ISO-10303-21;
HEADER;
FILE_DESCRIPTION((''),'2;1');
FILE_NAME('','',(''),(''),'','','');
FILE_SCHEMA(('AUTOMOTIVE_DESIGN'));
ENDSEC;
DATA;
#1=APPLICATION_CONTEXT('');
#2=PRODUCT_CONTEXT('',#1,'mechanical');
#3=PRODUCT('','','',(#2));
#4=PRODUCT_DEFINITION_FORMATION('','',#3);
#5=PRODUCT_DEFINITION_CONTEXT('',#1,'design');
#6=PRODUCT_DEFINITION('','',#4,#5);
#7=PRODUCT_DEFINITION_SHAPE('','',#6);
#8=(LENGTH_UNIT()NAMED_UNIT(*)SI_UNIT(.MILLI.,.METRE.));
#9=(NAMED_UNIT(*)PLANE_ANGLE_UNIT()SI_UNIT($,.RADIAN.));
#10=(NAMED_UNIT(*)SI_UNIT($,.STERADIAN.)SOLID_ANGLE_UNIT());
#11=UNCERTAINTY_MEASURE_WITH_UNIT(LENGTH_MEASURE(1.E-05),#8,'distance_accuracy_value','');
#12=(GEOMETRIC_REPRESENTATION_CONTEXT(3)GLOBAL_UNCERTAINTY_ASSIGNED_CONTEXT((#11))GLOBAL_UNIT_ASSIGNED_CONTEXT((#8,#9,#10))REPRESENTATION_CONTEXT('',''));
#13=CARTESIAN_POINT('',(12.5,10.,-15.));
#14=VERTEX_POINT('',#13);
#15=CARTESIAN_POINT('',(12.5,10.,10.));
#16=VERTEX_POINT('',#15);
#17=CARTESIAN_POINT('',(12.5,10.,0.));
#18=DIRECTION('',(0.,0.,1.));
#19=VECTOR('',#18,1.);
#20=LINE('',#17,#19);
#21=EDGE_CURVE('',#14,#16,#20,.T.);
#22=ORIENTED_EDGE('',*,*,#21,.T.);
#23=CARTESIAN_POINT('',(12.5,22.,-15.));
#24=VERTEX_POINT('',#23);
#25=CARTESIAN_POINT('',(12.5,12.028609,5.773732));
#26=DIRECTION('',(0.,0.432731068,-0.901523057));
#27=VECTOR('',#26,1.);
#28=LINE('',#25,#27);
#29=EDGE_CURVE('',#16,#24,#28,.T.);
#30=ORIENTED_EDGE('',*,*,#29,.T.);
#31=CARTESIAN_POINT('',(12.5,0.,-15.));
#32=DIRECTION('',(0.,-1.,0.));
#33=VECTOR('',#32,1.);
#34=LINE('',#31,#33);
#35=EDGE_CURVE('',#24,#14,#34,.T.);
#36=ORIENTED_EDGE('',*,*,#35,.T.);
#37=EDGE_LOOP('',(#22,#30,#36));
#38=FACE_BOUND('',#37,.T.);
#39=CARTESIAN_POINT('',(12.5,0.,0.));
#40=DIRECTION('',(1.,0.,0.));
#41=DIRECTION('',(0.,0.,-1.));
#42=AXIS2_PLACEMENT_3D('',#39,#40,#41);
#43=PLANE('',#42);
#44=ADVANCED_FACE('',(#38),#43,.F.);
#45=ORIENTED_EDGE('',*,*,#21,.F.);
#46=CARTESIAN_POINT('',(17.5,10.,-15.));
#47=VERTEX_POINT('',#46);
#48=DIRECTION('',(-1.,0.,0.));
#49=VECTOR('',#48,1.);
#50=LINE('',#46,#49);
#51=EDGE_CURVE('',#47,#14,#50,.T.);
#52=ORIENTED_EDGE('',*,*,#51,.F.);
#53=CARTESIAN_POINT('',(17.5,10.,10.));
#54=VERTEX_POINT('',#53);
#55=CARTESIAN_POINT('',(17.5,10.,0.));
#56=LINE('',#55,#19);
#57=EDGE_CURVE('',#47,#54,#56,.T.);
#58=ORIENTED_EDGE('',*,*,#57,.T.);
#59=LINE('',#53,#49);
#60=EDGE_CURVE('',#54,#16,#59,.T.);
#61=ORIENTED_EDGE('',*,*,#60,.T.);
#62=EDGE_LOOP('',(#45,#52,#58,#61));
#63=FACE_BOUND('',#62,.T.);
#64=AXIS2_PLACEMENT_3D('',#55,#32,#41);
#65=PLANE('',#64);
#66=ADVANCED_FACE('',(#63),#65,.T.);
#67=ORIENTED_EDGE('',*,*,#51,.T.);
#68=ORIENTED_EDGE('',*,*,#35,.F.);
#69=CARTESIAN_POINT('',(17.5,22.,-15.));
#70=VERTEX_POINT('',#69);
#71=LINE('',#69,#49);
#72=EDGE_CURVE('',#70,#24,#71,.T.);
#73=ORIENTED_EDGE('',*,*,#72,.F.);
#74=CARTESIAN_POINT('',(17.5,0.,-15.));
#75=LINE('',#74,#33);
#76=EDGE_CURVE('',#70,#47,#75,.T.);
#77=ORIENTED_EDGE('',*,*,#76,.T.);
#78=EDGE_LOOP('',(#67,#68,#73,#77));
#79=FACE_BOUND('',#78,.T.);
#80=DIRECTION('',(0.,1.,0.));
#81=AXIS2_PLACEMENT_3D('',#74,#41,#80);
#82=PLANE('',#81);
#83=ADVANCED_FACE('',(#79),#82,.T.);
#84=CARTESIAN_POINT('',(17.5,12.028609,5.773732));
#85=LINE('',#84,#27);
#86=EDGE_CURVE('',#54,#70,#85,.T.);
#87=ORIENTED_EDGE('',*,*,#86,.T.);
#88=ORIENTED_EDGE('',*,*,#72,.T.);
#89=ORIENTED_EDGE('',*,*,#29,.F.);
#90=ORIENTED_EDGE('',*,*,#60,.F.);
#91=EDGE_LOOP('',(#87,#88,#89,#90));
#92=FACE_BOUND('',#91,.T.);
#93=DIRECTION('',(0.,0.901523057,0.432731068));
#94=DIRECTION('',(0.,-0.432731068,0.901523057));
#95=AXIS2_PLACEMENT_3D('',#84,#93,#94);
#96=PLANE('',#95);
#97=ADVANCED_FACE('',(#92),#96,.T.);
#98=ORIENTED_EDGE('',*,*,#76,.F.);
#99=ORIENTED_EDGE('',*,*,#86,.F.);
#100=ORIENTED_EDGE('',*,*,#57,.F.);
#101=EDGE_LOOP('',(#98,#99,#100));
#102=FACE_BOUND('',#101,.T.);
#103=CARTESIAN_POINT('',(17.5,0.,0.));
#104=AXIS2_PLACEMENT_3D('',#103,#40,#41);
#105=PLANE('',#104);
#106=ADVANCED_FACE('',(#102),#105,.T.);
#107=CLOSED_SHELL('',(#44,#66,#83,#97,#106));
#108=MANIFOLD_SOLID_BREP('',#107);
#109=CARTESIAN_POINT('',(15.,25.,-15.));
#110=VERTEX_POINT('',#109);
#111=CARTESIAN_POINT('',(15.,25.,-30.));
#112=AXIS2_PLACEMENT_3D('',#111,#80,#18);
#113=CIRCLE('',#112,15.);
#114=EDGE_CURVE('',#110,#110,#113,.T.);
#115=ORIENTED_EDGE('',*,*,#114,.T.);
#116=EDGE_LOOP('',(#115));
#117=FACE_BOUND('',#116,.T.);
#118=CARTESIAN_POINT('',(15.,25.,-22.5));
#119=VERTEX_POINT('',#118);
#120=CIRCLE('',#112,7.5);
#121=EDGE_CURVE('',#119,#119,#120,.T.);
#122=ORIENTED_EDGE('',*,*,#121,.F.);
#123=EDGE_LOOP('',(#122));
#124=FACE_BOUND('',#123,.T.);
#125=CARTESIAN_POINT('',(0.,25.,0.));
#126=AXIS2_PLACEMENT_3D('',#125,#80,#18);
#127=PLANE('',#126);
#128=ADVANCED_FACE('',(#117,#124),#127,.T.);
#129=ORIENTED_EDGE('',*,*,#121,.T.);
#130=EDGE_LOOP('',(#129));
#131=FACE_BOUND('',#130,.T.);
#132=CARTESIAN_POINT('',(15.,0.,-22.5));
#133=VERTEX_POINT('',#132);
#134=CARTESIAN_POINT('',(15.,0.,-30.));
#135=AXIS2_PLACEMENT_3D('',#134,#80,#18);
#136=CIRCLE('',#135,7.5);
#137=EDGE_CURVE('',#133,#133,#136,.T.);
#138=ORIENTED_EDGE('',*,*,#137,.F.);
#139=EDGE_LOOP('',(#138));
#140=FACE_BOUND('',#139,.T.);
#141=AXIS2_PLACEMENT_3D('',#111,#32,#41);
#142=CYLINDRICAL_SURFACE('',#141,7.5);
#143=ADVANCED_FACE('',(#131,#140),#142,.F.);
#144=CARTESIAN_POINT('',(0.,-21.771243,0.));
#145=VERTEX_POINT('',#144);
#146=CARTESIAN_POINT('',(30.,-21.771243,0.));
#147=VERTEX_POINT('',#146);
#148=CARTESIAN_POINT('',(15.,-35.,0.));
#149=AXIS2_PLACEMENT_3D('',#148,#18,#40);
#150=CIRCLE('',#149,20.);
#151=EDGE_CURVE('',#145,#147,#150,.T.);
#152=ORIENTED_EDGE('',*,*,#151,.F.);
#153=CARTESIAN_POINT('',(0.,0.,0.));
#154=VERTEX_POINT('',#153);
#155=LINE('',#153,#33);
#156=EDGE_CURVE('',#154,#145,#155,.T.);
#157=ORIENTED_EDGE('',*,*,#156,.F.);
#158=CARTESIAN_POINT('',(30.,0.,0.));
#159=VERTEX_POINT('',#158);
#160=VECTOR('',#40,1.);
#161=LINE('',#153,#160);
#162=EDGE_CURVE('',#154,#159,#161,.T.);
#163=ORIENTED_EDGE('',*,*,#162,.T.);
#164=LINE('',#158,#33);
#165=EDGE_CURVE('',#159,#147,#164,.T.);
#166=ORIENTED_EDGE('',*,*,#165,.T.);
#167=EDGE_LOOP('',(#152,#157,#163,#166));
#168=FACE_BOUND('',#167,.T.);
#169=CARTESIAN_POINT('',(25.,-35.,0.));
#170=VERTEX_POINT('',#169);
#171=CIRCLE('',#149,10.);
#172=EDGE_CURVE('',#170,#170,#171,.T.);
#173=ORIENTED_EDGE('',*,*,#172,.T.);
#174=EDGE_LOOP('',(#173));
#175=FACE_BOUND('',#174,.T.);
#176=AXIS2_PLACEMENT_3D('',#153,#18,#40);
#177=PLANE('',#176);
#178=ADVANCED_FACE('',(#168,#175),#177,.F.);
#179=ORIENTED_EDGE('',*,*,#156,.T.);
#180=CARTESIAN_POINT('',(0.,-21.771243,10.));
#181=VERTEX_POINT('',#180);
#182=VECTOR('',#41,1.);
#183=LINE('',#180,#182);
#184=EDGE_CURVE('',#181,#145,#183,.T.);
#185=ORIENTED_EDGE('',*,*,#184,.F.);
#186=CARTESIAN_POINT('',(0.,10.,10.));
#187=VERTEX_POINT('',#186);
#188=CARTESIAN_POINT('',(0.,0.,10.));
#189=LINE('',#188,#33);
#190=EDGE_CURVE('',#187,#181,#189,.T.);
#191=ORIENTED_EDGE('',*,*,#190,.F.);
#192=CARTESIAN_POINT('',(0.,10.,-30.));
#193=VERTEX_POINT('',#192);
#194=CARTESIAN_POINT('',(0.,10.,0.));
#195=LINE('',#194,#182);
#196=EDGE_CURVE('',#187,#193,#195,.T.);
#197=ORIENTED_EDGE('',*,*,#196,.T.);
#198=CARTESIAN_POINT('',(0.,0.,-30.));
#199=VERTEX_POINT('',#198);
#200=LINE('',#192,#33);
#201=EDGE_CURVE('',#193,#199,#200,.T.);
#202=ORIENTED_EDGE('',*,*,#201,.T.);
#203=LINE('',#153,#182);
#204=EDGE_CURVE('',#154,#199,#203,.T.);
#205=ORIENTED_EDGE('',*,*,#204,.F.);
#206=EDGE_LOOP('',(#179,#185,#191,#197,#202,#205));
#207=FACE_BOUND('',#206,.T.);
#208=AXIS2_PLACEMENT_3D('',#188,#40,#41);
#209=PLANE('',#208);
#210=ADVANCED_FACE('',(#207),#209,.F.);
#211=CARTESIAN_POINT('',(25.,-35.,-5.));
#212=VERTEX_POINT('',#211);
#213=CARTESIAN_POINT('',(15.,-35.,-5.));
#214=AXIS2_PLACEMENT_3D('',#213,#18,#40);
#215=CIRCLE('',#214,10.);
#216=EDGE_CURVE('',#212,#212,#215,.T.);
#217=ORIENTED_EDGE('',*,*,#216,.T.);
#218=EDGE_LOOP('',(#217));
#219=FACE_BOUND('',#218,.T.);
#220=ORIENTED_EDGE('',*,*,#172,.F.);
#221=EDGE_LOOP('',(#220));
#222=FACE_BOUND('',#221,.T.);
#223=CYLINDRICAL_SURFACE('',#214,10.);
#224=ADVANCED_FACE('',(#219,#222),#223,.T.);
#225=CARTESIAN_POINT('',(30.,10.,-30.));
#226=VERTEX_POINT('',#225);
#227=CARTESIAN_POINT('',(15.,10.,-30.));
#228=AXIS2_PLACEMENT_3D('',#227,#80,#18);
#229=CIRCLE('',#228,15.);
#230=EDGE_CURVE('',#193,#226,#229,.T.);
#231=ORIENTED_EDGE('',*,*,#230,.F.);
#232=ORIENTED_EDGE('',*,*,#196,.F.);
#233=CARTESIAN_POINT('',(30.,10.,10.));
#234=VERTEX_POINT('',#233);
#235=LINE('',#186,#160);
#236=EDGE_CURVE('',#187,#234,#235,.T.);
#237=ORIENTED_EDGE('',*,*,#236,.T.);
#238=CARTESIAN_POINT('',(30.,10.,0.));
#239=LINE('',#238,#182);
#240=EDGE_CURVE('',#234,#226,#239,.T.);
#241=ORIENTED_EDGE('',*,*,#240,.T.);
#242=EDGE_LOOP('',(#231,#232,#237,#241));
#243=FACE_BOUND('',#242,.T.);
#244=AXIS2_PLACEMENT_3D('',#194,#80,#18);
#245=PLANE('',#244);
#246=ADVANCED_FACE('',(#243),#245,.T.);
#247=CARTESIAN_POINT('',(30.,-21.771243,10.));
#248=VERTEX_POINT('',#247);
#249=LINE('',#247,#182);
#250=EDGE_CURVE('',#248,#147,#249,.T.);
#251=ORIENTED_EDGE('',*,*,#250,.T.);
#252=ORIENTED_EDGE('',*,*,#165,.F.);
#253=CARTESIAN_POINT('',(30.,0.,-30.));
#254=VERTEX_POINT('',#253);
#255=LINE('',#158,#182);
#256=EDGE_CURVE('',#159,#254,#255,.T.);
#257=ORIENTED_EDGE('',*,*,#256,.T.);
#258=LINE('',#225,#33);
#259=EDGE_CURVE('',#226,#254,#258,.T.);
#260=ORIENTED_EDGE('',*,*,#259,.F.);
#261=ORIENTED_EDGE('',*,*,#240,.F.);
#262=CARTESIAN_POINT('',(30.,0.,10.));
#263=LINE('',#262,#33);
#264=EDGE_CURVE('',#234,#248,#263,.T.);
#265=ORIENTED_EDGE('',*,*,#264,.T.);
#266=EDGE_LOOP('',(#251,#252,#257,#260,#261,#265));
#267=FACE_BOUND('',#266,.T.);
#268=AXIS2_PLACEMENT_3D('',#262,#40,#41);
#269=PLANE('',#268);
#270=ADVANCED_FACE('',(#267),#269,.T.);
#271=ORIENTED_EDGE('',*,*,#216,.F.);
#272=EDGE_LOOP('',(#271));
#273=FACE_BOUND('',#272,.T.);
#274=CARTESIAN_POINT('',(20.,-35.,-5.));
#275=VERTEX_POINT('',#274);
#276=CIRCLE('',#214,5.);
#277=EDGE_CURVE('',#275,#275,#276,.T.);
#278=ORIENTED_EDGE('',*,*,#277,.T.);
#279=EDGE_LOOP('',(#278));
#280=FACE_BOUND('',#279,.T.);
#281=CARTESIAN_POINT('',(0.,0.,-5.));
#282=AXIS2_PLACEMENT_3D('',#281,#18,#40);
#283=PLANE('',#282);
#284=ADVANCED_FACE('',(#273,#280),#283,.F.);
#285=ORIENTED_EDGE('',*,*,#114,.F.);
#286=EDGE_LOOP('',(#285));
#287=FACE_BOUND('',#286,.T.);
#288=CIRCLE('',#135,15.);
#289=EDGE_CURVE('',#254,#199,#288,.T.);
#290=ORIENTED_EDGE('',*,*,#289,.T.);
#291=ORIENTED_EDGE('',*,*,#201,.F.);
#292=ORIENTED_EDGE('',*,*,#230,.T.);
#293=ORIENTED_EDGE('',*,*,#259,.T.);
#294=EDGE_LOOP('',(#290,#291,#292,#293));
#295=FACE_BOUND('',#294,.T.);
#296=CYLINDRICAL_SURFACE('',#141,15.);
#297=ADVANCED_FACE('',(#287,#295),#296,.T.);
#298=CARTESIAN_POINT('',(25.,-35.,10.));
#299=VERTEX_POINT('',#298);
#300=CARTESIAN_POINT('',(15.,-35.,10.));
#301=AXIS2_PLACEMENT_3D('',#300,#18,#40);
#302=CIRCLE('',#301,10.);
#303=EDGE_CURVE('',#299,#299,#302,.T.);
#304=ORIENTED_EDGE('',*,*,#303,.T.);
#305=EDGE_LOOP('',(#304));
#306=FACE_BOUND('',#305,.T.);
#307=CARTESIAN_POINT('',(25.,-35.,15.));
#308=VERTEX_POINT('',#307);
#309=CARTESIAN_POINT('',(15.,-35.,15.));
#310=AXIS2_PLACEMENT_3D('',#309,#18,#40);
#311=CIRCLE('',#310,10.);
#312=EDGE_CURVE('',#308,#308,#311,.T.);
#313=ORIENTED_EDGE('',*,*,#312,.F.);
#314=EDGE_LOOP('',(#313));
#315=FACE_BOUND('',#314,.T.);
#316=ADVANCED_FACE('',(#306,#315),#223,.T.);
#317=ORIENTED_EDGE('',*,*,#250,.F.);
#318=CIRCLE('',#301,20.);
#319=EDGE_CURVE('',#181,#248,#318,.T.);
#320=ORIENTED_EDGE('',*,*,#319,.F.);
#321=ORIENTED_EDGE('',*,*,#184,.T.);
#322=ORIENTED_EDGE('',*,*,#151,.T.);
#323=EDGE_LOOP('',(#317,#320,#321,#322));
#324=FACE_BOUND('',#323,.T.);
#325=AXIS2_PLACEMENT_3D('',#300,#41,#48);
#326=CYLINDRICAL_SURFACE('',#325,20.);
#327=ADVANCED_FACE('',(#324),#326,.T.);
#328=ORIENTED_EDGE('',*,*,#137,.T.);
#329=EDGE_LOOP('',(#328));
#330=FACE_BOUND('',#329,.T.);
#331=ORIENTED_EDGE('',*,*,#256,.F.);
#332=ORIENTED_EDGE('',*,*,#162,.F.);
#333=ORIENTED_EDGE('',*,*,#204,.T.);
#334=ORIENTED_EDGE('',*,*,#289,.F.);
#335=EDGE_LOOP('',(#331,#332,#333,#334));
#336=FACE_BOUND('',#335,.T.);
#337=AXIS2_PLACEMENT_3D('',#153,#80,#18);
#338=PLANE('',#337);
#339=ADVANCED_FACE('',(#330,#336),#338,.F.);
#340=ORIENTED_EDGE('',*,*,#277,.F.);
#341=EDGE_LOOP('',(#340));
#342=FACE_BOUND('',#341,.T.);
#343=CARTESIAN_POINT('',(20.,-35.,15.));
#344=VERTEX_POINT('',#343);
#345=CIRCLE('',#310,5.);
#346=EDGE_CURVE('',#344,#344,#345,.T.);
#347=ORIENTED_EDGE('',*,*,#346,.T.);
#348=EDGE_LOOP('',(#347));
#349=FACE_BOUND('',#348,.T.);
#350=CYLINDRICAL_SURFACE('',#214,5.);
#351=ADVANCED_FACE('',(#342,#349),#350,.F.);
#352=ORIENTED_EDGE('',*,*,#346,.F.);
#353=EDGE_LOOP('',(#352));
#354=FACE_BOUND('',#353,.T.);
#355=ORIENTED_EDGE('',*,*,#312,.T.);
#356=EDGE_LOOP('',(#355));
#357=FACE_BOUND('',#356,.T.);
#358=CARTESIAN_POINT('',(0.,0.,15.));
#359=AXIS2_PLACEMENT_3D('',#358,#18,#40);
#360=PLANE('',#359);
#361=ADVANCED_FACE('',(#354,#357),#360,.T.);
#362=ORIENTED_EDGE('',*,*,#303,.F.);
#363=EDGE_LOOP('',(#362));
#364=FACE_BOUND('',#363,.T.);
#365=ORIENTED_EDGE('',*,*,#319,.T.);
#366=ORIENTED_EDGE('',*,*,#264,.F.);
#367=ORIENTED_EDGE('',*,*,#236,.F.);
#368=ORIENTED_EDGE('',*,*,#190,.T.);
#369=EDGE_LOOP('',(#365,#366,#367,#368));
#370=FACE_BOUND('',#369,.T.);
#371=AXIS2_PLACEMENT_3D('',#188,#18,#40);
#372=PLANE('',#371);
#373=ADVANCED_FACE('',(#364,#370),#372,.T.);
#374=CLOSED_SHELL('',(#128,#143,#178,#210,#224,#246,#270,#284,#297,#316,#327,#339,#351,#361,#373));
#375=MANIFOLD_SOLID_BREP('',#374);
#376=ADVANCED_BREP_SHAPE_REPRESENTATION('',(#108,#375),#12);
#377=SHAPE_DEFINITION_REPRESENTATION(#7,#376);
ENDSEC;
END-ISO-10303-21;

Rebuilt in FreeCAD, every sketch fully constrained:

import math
import FreeCAD as App
import Part
import Sketcher
from FreeCAD import Vector


def add_polygon(sketch, points):
    """Adds a closed chain of lines whose ends are joined by coincident constraints."""
    first, n = sketch.GeometryCount, len(points)
    for a, b in zip(points, points[1:] + points[:1]):
        sketch.addGeometry(Part.LineSegment(App.Vector(*a, 0), App.Vector(*b, 0)), False)
    for i in range(n):
        sketch.addConstraint(Sketcher.Constraint("Coincident", first + i, 2, first + (i + 1) % n, 1))

doc = App.newDocument("Part")
body = doc.addObject("PartDesign::Body", "Body")

# Sketch on XY plane
sketch1 = body.newObject("Sketcher::SketchObject", "Sketch")
sketch1.AttachmentSupport = (doc.getObject("XY_Plane"), [""])
sketch1.MapMode = "FlatFace"
sketch1.addGeometry(Part.LineSegment(Vector(30, -21.771243, 0), Vector(30, 0, 0)), False)
sketch1.addGeometry(Part.LineSegment(Vector(30, 0, 0), Vector(0, 0, 0)), False)
sketch1.addGeometry(Part.LineSegment(Vector(0, 0, 0), Vector(0, -21.771243, 0)), False)
sketch1.addGeometry(Part.ArcOfCircle(Part.Circle(Vector(15, -35, 0), Vector(0, 0, 1), 20), math.radians(138.590378), math.radians(270)), False)
sketch1.addGeometry(Part.ArcOfCircle(Part.Circle(Vector(15, -35, 0), Vector(0, 0, 1), 20), math.radians(-90), math.radians(0)), False)
sketch1.addGeometry(Part.ArcOfCircle(Part.Circle(Vector(15, -35, 0), Vector(0, 0, 1), 20), math.radians(0), math.radians(41.409622)), False)
sketch1.addGeometry(Part.ArcOfCircle(Part.Circle(Vector(15, -35, 0), Vector(0, 0, 1), 10), math.radians(90), math.radians(270)), False)
sketch1.addGeometry(Part.ArcOfCircle(Part.Circle(Vector(15, -35, 0), Vector(0, 0, 1), 10), math.radians(0), math.radians(90)), False)
sketch1.addGeometry(Part.ArcOfCircle(Part.Circle(Vector(15, -35, 0), Vector(0, 0, 1), 10), math.radians(-90), math.radians(0)), False)
sketch1.addConstraint(Sketcher.Constraint("Coincident", 0, 2, 1, 1))
sketch1.addConstraint(Sketcher.Constraint("Coincident", 1, 2, 2, 1))
sketch1.addConstraint(Sketcher.Constraint("Coincident", 2, 2, 3, 1))
sketch1.addConstraint(Sketcher.Constraint("Tangent", 3, 2, 4, 1))
sketch1.addConstraint(Sketcher.Constraint("Tangent", 4, 2, 5, 1))
sketch1.addConstraint(Sketcher.Constraint("Coincident", 5, 2, 0, 1))
sketch1.addConstraint(Sketcher.Constraint("Tangent", 6, 1, 7, 2))
sketch1.addConstraint(Sketcher.Constraint("Tangent", 7, 1, 8, 2))
sketch1.addConstraint(Sketcher.Constraint("Tangent", 8, 1, 6, 2))
sketch1.addConstraint(Sketcher.Constraint("Vertical", 0))
sketch1.addConstraint(Sketcher.Constraint("Horizontal", 1))
sketch1.addConstraint(Sketcher.Constraint("Vertical", 2))
sketch1.addConstraint(Sketcher.Constraint("Coincident", 1, 2, -1, 1))
sketch1.addConstraint(Sketcher.Constraint("Coincident", 5, 3, 3, 3))
sketch1.addConstraint(Sketcher.Constraint("Coincident", 6, 3, 3, 3))
sketch1.addConstraint(Sketcher.Constraint("Horizontal", 8, 3, 4, 2))
sketch1.addConstraint(Sketcher.Constraint("Horizontal", 2, 2, 5, 2))
sketch1.addConstraint(Sketcher.Constraint("Horizontal", 4, 2, 7, 1))
sketch1.addConstraint(Sketcher.Constraint("Vertical", 8, 3, 3, 2))
sketch1.addConstraint(Sketcher.Constraint("Vertical", 3, 2, 6, 1))
sketch1.addConstraint(Sketcher.Constraint("Vertical", 6, 1, 8, 1))
sketch1.addConstraint(Sketcher.Constraint("Radius", 3, 20.0))
sketch1.addConstraint(Sketcher.Constraint("Radius", 6, 10.0))
sketch1.addConstraint(Sketcher.Constraint("DistanceX", 1, 2, 1, 1, 30.0))
sketch1.addConstraint(Sketcher.Constraint("DistanceY", 3, 3, -1, 1, 35.0))
pad1 = body.newObject("PartDesign::Pad", "Pad")
pad1.Profile = sketch1
pad1.Length = 10

# Sketch on XY plane
sketch2 = body.newObject("Sketcher::SketchObject", "Sketch001")
sketch2.AttachmentSupport = (doc.getObject("XY_Plane"), [""])
sketch2.MapMode = "FlatFace"
sketch2.addGeometry(Part.ArcOfCircle(Part.Circle(Vector(15, -35, 0), Vector(0, 0, 1), 10), math.radians(0), math.radians(90)), False)
sketch2.addGeometry(Part.ArcOfCircle(Part.Circle(Vector(15, -35, 0), Vector(0, 0, 1), 10), math.radians(90), math.radians(270)), False)
sketch2.addGeometry(Part.ArcOfCircle(Part.Circle(Vector(15, -35, 0), Vector(0, 0, 1), 10), math.radians(-90), math.radians(0)), False)
sketch2.addGeometry(Part.ArcOfCircle(Part.Circle(Vector(15, -35, 0), Vector(0, 0, 1), 5), math.radians(-90), math.radians(0)), False)
sketch2.addGeometry(Part.ArcOfCircle(Part.Circle(Vector(15, -35, 0), Vector(0, 0, 1), 5), math.radians(90), math.radians(270)), False)
sketch2.addGeometry(Part.ArcOfCircle(Part.Circle(Vector(15, -35, 0), Vector(0, 0, 1), 5), math.radians(0), math.radians(90)), False)
sketch2.addConstraint(Sketcher.Constraint("Tangent", 0, 2, 1, 1))
sketch2.addConstraint(Sketcher.Constraint("Tangent", 1, 2, 2, 1))
sketch2.addConstraint(Sketcher.Constraint("Tangent", 2, 2, 0, 1))
sketch2.addConstraint(Sketcher.Constraint("Tangent", 3, 1, 4, 2))
sketch2.addConstraint(Sketcher.Constraint("Tangent", 4, 1, 5, 2))
sketch2.addConstraint(Sketcher.Constraint("Tangent", 5, 1, 3, 2))
sketch2.addConstraint(Sketcher.Constraint("Coincident", 3, 3, 0, 3))
sketch2.addConstraint(Sketcher.Constraint("Horizontal", 5, 3, 2, 2))
sketch2.addConstraint(Sketcher.Constraint("Horizontal", 2, 2, 5, 1))
sketch2.addConstraint(Sketcher.Constraint("Vertical", 5, 3, 0, 2))
sketch2.addConstraint(Sketcher.Constraint("Vertical", 0, 2, 1, 2))
sketch2.addConstraint(Sketcher.Constraint("Vertical", 1, 2, 3, 1))
sketch2.addConstraint(Sketcher.Constraint("Vertical", 3, 1, 4, 1))
sketch2.addConstraint(Sketcher.Constraint("Radius", 0, 10.0))
sketch2.addConstraint(Sketcher.Constraint("Radius", 3, 5.0))
sketch2.addConstraint(Sketcher.Constraint("DistanceX", -1, 1, 0, 3, 15.0))
sketch2.addConstraint(Sketcher.Constraint("DistanceY", 0, 3, -1, 1, 35.0))
pad2 = body.newObject("PartDesign::Pad", "Pad001")
pad2.Profile = sketch2
pad2.Type = "TwoLengths"
pad2.Length = 15
pad2.Length2 = 5

# Sketch on XZ plane
sketch3 = body.newObject("Sketcher::SketchObject", "Sketch002")
sketch3.AttachmentSupport = (doc.getObject("XZ_Plane"), [""])
sketch3.MapMode = "FlatFace"
sketch3.addGeometry(Part.LineSegment(Vector(0, -30, 0), Vector(0, 10, 0)), False)
sketch3.addGeometry(Part.LineSegment(Vector(0, 10, 0), Vector(30, 10, 0)), False)
sketch3.addGeometry(Part.LineSegment(Vector(30, 10, 0), Vector(30, -30, 0)), False)
sketch3.addGeometry(Part.ArcOfCircle(Part.Circle(Vector(15, -30, 0), Vector(0, 0, 1), 15), math.radians(0), math.radians(180)), False)
sketch3.addConstraint(Sketcher.Constraint("Coincident", 0, 2, 1, 1))
sketch3.addConstraint(Sketcher.Constraint("Coincident", 1, 2, 2, 1))
sketch3.addConstraint(Sketcher.Constraint("Tangent", 2, 2, 3, 1))
sketch3.addConstraint(Sketcher.Constraint("Tangent", 3, 2, 0, 1))
sketch3.addConstraint(Sketcher.Constraint("Vertical", 0))
sketch3.addConstraint(Sketcher.Constraint("Horizontal", 1))
sketch3.addConstraint(Sketcher.Constraint("Vertical", 2))
sketch3.addConstraint(Sketcher.Constraint("PointOnObject", 0, 2, -2))
sketch3.addConstraint(Sketcher.Constraint("Radius", 3, 15.0))
sketch3.addConstraint(Sketcher.Constraint("DistanceY", 0, 1, 0, 2, 40.0))
sketch3.addConstraint(Sketcher.Constraint("DistanceY", 3, 3, -1, 1, 30.0))
pad3 = body.newObject("PartDesign::Pad", "Pad002")
pad3.Profile = sketch3
pad3.Length = 10
pad3.Reversed = True

# Sketch on XZ plane
sketch4 = body.newObject("Sketcher::SketchObject", "Sketch003")
sketch4.AttachmentSupport = (doc.getObject("XZ_Plane"), [""])
sketch4.MapMode = "FlatFace"
sketch4.addGeometry(Part.Circle(Vector(15, -30, 0), Vector(0, 0, 1), 15), False)
sketch4.addGeometry(Part.Circle(Vector(15, -30, 0), Vector(0, 0, 1), 7.5), False)
sketch4.addConstraint(Sketcher.Constraint("Coincident", 1, 3, 0, 3))
sketch4.addConstraint(Sketcher.Constraint("Diameter", 0, 30.0))
sketch4.addConstraint(Sketcher.Constraint("Diameter", 1, 15.0))
sketch4.addConstraint(Sketcher.Constraint("DistanceX", -1, 1, 0, 3, 15.0))
sketch4.addConstraint(Sketcher.Constraint("DistanceY", 0, 3, -1, 1, 30.0))
pad4 = body.newObject("PartDesign::Pad", "Pad003")
pad4.Profile = sketch4
pad4.Length = 25
pad4.Reversed = True
body2 = doc.addObject("PartDesign::Body", "Body001")

# Sketch on YZ plane
sketch5 = body2.newObject("Sketcher::SketchObject", "Sketch004")
sketch5.AttachmentSupport = (doc.getObject("YZ_Plane001"), [""])
sketch5.MapMode = "FlatFace"
sketch5.AttachmentOffset = App.Placement(Vector(0, 0, 15), App.Rotation())
add_polygon(sketch5, [(22, -15), (10, 10), (10, -15)])  # lines 0-2
sketch5.addConstraint(Sketcher.Constraint("Vertical", 1))
sketch5.addConstraint(Sketcher.Constraint("Horizontal", 2))
sketch5.addConstraint(Sketcher.Constraint("DistanceX", 2, 1, 2, 2, 12.0))
sketch5.addConstraint(Sketcher.Constraint("DistanceY", 1, 2, 1, 1, 25.0))
sketch5.addConstraint(Sketcher.Constraint("DistanceX", -1, 1, 0, 2, 10.0))
sketch5.addConstraint(Sketcher.Constraint("DistanceY", -1, 1, 0, 2, 10.0))
pad5 = body2.newObject("PartDesign::Pad", "Pad004")
pad5.Profile = sketch5
pad5.Length = 5
pad5.Midplane = True

doc.recompute()
